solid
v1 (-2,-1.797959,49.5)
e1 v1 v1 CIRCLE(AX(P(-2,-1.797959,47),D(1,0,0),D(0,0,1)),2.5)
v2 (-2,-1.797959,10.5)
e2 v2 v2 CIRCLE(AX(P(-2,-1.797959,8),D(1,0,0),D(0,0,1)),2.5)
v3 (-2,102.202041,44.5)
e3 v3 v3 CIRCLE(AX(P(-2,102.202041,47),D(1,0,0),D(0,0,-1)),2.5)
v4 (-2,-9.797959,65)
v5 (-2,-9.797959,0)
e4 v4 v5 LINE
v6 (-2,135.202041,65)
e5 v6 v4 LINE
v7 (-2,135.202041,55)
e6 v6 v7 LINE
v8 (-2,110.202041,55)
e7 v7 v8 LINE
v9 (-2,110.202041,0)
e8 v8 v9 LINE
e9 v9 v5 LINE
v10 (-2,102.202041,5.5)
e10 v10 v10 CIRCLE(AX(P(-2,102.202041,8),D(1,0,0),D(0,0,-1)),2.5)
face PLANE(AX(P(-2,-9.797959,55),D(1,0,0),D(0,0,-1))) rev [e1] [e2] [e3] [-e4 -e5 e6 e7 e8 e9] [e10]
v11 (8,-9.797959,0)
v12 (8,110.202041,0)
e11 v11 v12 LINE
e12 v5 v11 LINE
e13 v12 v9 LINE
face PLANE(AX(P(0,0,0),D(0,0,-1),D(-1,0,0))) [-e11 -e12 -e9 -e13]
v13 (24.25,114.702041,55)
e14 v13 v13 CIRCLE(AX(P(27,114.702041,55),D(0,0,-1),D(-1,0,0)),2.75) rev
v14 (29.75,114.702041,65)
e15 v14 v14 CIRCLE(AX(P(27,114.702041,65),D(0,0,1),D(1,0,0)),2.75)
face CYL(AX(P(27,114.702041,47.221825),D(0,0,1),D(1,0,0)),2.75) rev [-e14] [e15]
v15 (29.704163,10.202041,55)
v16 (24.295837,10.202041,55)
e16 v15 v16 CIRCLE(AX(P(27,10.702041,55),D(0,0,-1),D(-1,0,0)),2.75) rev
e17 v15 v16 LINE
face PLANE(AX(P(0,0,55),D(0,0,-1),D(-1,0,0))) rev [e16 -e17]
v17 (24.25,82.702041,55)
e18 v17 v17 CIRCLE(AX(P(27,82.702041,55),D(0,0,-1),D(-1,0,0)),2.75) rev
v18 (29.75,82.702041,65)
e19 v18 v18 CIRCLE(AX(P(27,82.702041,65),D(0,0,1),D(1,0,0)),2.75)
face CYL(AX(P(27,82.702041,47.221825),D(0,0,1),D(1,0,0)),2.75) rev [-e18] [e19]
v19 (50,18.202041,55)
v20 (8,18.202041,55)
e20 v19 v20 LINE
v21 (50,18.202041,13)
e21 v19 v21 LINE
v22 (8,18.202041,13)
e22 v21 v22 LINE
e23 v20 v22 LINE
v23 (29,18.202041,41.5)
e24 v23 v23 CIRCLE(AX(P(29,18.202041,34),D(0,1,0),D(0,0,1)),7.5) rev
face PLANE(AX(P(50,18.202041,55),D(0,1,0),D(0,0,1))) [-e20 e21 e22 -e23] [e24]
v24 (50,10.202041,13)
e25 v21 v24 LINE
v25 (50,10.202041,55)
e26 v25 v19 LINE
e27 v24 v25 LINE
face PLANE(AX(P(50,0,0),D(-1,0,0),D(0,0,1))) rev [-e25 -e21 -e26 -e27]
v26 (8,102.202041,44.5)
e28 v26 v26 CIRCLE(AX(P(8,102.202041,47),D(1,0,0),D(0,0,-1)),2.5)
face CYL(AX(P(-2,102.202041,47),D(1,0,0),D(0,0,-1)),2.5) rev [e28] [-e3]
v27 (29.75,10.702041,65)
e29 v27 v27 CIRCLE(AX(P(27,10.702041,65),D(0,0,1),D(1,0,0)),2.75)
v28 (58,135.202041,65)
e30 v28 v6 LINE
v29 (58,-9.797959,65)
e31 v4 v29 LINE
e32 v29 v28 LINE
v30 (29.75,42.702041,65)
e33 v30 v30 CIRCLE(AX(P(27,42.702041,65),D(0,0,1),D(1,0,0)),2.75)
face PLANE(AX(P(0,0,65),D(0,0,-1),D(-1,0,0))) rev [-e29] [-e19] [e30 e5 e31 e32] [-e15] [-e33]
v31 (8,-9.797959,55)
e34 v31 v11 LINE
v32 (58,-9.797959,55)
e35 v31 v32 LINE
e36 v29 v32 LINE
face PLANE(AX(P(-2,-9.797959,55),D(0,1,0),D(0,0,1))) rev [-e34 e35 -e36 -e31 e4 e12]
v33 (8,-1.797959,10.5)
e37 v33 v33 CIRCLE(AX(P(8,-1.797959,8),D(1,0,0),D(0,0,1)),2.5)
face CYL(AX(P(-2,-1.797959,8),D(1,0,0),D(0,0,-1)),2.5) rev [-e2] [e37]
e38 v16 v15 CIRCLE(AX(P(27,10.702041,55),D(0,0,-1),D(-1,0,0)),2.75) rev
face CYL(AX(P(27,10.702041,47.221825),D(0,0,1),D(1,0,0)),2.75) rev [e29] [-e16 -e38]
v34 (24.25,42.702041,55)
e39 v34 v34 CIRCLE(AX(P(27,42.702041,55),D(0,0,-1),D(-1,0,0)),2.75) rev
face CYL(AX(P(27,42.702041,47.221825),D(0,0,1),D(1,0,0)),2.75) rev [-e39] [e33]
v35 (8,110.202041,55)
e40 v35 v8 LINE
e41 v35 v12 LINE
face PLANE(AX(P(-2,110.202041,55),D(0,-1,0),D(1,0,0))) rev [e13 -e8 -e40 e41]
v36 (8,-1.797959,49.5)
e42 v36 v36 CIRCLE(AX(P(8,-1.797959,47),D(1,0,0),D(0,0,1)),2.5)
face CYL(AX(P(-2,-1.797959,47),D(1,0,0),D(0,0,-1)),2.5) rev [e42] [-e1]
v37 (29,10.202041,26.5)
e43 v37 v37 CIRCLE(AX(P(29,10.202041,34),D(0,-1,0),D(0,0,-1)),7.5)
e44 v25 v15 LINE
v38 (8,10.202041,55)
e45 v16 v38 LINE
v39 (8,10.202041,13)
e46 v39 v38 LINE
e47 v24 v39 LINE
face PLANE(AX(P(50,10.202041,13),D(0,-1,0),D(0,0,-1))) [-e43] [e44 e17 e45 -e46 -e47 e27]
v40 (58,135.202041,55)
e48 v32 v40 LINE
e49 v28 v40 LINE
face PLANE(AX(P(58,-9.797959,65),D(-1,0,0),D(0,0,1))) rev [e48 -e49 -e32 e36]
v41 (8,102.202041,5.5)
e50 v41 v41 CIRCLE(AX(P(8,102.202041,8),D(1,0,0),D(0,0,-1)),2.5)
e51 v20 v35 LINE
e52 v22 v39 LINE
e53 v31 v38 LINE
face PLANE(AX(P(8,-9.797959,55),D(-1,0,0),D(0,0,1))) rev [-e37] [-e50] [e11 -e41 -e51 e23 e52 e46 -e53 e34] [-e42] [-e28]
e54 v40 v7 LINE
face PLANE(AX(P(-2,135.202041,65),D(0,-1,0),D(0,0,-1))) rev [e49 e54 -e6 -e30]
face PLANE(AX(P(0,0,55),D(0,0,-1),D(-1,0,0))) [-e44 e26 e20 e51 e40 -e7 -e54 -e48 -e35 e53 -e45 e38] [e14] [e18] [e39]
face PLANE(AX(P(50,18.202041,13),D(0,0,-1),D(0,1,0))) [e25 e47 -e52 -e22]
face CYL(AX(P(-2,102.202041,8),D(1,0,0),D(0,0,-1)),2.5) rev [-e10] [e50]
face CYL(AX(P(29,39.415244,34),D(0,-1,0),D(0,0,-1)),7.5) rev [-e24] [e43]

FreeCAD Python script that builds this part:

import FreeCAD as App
import Part
import Sketcher
Q = App.Units.Quantity


def add_polygon(sketch, points):
    """Adds a closed chain of lines whose ends are joined by coincident constraints."""
    first, n = sketch.GeometryCount, len(points)
    for a, b in zip(points, points[1:] + points[:1]):
        sketch.addGeometry(Part.LineSegment(App.Vector(*a, 0), App.Vector(*b, 0)), False)
    for i in range(n):
        sketch.addConstraint(Sketcher.Constraint("Coincident", first + i, 2, first + (i + 1) % n, 1))

doc = App.newDocument("Part")
body = doc.addObject("PartDesign::Body", "Body")

# Sketch on XY plane
sketch1 = body.newObject("Sketcher::SketchObject", "Sketch")
sketch1.AttachmentSupport = (doc.getObject("XY_Plane"), [""])
sketch1.MapMode = "FlatFace"
add_polygon(sketch1, [(-2, 110), (-2, -10), (8, -10), (8, 110)])  # lines 0-3
sketch1.addConstraint([
    Sketcher.Constraint("Vertical", 0),
    Sketcher.Constraint("Horizontal", 1),
    Sketcher.Constraint("Vertical", 2),
    Sketcher.Constraint("Horizontal", 3),
    Sketcher.Constraint("DistanceX", 1, 1, 1, 2, Q("10 mm")),
    Sketcher.Constraint("DistanceY", 0, 2, 0, 1, Q("120 mm")),
    Sketcher.Constraint("DistanceX", 0, 2, -1, 1, Q("2 mm")),
    Sketcher.Constraint("DistanceY", 0, 2, -1, 1, Q("9.797959 mm")),
])
pad1 = body.newObject("PartDesign::Pad", "Pad")
pad1.Profile = sketch1
pad1.Length = 55

# Sketch on YZ plane
sketch2 = body.newObject("Sketcher::SketchObject", "Sketch001")
sketch2.AttachmentSupport = (doc.getObject("YZ_Plane"), [""])
sketch2.MapMode = "FlatFace"
sketch2.AttachmentOffset = App.Placement(App.Vector(0, 0, 8), App.Rotation())
add_polygon(sketch2, [(18, 55), (10, 55), (10, 13), (18, 13)])  # lines 0-3
sketch2.addConstraint([
    Sketcher.Constraint("Horizontal", 0),
    Sketcher.Constraint("Vertical", 1),
    Sketcher.Constraint("Horizontal", 2),
    Sketcher.Constraint("Vertical", 3),
    Sketcher.Constraint("DistanceX", 0, 2, 0, 1, Q("8 mm")),
    Sketcher.Constraint("DistanceY", 1, 2, 1, 1, Q("42 mm")),
    Sketcher.Constraint("DistanceY", -1, 1, 0, 2, Q("55 mm")),
    Sketcher.Constraint("DistanceX", -1, 1, 0, 2, Q("10.202041 mm")),
])
pad2 = body.newObject("PartDesign::Pad", "Pad001")
pad2.Profile = sketch2
pad2.Length = 42

# Sketch on XZ plane
sketch3 = body.newObject("Sketcher::SketchObject", "Sketch002")
sketch3.AttachmentSupport = (doc.getObject("XZ_Plane"), [""])
sketch3.MapMode = "FlatFace"
sketch3.AttachmentOffset = App.Placement(App.Vector(0, 0, -10.202041), App.Rotation())
sketch3.addGeometry(Part.Circle(App.Vector(29, 34, 0), App.Vector(0, 0, 1), 8), False)
sketch3.addConstraint([
    Sketcher.Constraint("Diameter", 0, Q("15 mm")),
    Sketcher.Constraint("DistanceX", -1, 1, 0, 3, Q("29 mm")),
    Sketcher.Constraint("DistanceY", -1, 1, 0, 3, Q("34 mm")),
])
pocket1 = body.newObject("PartDesign::Pocket", "Pocket")
pocket1.Profile = sketch3
pocket1.Length = 8

# Sketch on XY plane
sketch4 = body.newObject("Sketcher::SketchObject", "Sketch003")
sketch4.AttachmentSupport = (doc.getObject("XY_Plane"), [""])
sketch4.MapMode = "FlatFace"
sketch4.AttachmentOffset = App.Placement(App.Vector(0, 0, 55), App.Rotation())
add_polygon(sketch4, [(-2, 135), (-2, -10), (58, -10), (58, 135)])  # lines 0-3
sketch4.addConstraint([
    Sketcher.Constraint("Vertical", 0),
    Sketcher.Constraint("Horizontal", 1),
    Sketcher.Constraint("Vertical", 2),
    Sketcher.Constraint("Horizontal", 3),
    Sketcher.Constraint("DistanceX", 1, 1, 1, 2, Q("60 mm")),
    Sketcher.Constraint("DistanceY", 0, 2, 0, 1, Q("145 mm")),
    Sketcher.Constraint("DistanceX", 0, 2, -1, 1, Q("2 mm")),
    Sketcher.Constraint("DistanceY", 0, 2, -1, 1, Q("9.797959 mm")),
])
pad3 = body.newObject("PartDesign::Pad", "Pad002")
pad3.Profile = sketch4
pad3.Length = 10

# Sketch on XY plane
sketch5 = body.newObject("Sketcher::SketchObject", "Sketch004")
sketch5.AttachmentSupport = (doc.getObject("XY_Plane"), [""])
sketch5.MapMode = "FlatFace"
sketch5.AttachmentOffset = App.Placement(App.Vector(0, 0, 65), App.Rotation())
sketch5.addGeometry([
    Part.Circle(App.Vector(27, 114.7, 0), App.Vector(0, 0, 1), 2.8),
    Part.Circle(App.Vector(27, 82.7, 0), App.Vector(0, 0, 1), 2.8),
    Part.Circle(App.Vector(27, 42.7, 0), App.Vector(0, 0, 1), 2.8),
    Part.Circle(App.Vector(27, 10.7, 0), App.Vector(0, 0, 1), 2.8),
], False)
sketch5.addConstraint([
    Sketcher.Constraint("Equal", 0, 1),
    Sketcher.Constraint("Equal", 1, 2),
    Sketcher.Constraint("Equal", 2, 3),
    Sketcher.Constraint("Vertical", 0, 3, 1, 3),
    Sketcher.Constraint("Vertical", 1, 3, 2, 3),
    Sketcher.Constraint("Vertical", 2, 3, 3, 3),
    Sketcher.Constraint("Diameter", 0, Q("5.5 mm")),
    Sketcher.Constraint("DistanceX", -1, 1, 0, 3, Q("27 mm")),
    Sketcher.Constraint("DistanceY", 1, 3, 0, 3, Q("32 mm")),
    Sketcher.Constraint("DistanceY", 2, 3, 1, 3, Q("40 mm")),
    Sketcher.Constraint("DistanceY", 3, 3, 2, 3, Q("32 mm")),
    Sketcher.Constraint("DistanceY", -1, 1, 0, 3, Q("114.702041 mm")),
])
pocket2 = body.newObject("PartDesign::Pocket", "Pocket001")
pocket2.Profile = sketch5
pocket2.Length = 10

# Sketch on YZ plane
sketch6 = body.newObject("Sketcher::SketchObject", "Sketch005")
sketch6.AttachmentSupport = (doc.getObject("YZ_Plane"), [""])
sketch6.MapMode = "FlatFace"
sketch6.AttachmentOffset = App.Placement(App.Vector(0, 0, 8), App.Rotation())
sketch6.addGeometry([
    Part.Circle(App.Vector(102.2, 47, 0), App.Vector(0, 0, 1), 2.5),
    Part.Circle(App.Vector(102.2, 8, 0), App.Vector(0, 0, 1), 2.5),
    Part.Circle(App.Vector(-1.8, 47, 0), App.Vector(0, 0, 1), 2.5),
    Part.Circle(App.Vector(-1.8, 8, 0), App.Vector(0, 0, 1), 2.5),
], False)
sketch6.addConstraint([
    Sketcher.Constraint("Equal", 0, 1),
    Sketcher.Constraint("Equal", 1, 2),
    Sketcher.Constraint("Equal", 2, 3),
    Sketcher.Constraint("Horizontal", 0, 3, 2, 3),
    Sketcher.Constraint("Horizontal", 1, 3, 3, 3),
    Sketcher.Constraint("Vertical", 0, 3, 1, 3),
    Sketcher.Constraint("Vertical", 2, 3, 3, 3),
    Sketcher.Constraint("Diameter", 0, Q("5 mm")),
    Sketcher.Constraint("DistanceY", -1, 1, 0, 3, Q("47 mm")),
    Sketcher.Constraint("DistanceY", -1, 1, 1, 3, Q("8 mm")),
    Sketcher.Constraint("DistanceX", 2, 3, 0, 3, Q("104 mm")),
    Sketcher.Constraint("DistanceX", -1, 1, 0, 3, Q("102.202041 mm")),
])
pocket3 = body.newObject("PartDesign::Pocket", "Pocket002")
pocket3.Profile = sketch6
pocket3.Length = 10

doc.recompute()
